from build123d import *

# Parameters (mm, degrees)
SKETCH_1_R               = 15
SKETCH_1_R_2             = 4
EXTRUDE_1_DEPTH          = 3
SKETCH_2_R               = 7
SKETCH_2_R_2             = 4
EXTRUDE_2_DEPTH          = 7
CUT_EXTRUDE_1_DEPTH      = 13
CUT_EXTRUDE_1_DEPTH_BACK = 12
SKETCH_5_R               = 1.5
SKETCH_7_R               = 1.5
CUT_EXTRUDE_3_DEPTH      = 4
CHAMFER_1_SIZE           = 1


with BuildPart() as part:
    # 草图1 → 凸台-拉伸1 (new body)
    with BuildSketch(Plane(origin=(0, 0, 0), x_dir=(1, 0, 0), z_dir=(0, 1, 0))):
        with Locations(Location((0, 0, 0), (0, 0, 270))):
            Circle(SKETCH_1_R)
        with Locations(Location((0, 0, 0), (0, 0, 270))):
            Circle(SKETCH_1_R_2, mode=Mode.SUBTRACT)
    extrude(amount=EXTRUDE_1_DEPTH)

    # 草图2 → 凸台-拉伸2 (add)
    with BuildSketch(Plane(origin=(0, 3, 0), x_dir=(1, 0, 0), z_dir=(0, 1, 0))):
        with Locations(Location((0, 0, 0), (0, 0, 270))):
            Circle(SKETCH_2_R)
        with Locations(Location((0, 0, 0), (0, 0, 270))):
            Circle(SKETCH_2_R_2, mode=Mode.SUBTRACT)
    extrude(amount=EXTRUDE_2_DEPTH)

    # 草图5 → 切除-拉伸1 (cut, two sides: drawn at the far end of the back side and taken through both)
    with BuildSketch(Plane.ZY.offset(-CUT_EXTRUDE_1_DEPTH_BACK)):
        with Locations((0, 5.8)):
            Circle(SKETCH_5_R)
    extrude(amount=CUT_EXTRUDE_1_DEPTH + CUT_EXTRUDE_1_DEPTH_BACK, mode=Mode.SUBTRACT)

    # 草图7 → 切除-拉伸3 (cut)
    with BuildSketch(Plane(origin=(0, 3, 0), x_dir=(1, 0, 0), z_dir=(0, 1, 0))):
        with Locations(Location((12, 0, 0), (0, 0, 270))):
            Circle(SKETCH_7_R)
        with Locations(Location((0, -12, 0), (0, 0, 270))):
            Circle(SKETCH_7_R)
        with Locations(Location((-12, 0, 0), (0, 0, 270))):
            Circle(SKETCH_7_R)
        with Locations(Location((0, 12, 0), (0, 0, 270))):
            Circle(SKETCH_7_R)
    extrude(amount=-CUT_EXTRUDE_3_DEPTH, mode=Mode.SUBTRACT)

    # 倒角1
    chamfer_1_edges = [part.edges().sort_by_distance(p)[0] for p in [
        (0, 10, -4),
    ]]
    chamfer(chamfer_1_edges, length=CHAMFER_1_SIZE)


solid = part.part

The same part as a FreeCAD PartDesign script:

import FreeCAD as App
import Part
import Sketcher

V = App.Vector
Q = App.Units.Quantity


def edges_at(feature, points):
    """Names of the edges that pass closest to the given points."""
    edges = feature.Shape.Edges
    near = lambda p: min(range(len(edges)), key=lambda i: edges[i].distToShape(Part.Vertex(*p))[0])
    return sorted({f"Edge{near(p) + 1}" for p in points})

doc = App.newDocument("Part")
body = doc.addObject("PartDesign::Body", "Body")

sketch1 = body.newObject("Sketcher::SketchObject", "Sketch")
sketch1.AttachmentSupport = (doc.getObject("XZ_Plane"), [""])
sketch1.MapMode = "FlatFace"
sketch1.addGeometry(Part.Circle(V(0, 0, 0), V(0, 0, 1), 15), False)
sketch1.addGeometry(Part.Circle(V(0, 0, 0), V(0, 0, 1), 4), False)
sketch1.addConstraint(Sketcher.Constraint("Coincident", 0, 3, -1, 1))
sketch1.addConstraint(Sketcher.Constraint("Coincident", 1, 3, -1, 1))
sketch1.addConstraint(Sketcher.Constraint("Diameter", 0, Q("30 mm")))
sketch1.addConstraint(Sketcher.Constraint("Diameter", 1, Q("8 mm")))
pad1 = body.newObject("PartDesign::Pad", "Pad")
pad1.Profile = sketch1
pad1.Length = 3
pad1.Reversed = True

sketch2 = body.newObject("Sketcher::SketchObject", "Sketch001")
sketch2.AttachmentSupport = (doc.getObject("XZ_Plane"), [""])
sketch2.MapMode = "FlatFace"
sketch2.AttachmentOffset = App.Placement(V(0, 0, -3), App.Rotation())
sketch2.addGeometry(Part.Circle(V(0, 0, 0), V(0, 0, 1), 7), False)
sketch2.addGeometry(Part.Circle(V(0, 0, 0), V(0, 0, 1), 4), False)
sketch2.addConstraint(Sketcher.Constraint("Coincident", 0, 3, -1, 1))
sketch2.addConstraint(Sketcher.Constraint("Coincident", 1, 3, -1, 1))
sketch2.addConstraint(Sketcher.Constraint("Diameter", 0, Q("14 mm")))
sketch2.addConstraint(Sketcher.Constraint("Diameter", 1, Q("8 mm")))
pad2 = body.newObject("PartDesign::Pad", "Pad001")
pad2.Profile = sketch2
pad2.Length = 7
pad2.Reversed = True

sketch3 = body.newObject("Sketcher::SketchObject", "Sketch002")
sketch3.AttachmentSupport = (doc.getObject("YZ_Plane"), [""])
sketch3.MapMode = "FlatFace"
sketch3.addGeometry(Part.Circle(V(5.8, 0, 0), V(0, 0, 1), 1.5), False)
sketch3.addConstraint(Sketcher.Constraint("PointOnObject", 0, 3, -1))
sketch3.addConstraint(Sketcher.Constraint("Diameter", 0, Q("3 mm")))
sketch3.addConstraint(Sketcher.Constraint("DistanceX", -1, 1, 0, 3, Q("5.8 mm")))
pocket1 = body.newObject("PartDesign::Pocket", "Pocket")
pocket1.Profile = sketch3
pocket1.Type = "ThroughAll"
pocket1.Midplane = True

sketch4 = body.newObject("Sketcher::SketchObject", "Sketch003")
sketch4.AttachmentSupport = (doc.getObject("XZ_Plane"), [""])
sketch4.MapMode = "FlatFace"
sketch4.AttachmentOffset = App.Placement(V(0, 0, -3), App.Rotation())
sketch4.addGeometry(Part.Circle(V(12, 0, 0), V(0, 0, 1), 1.5), False)
sketch4.addGeometry(Part.Circle(V(0, 12, 0), V(0, 0, 1), 1.5), False)
sketch4.addGeometry(Part.Circle(V(-12, 0, 0), V(0, 0, 1), 1.5), False)
sketch4.addGeometry(Part.Circle(V(0, -12, 0), V(0, 0, 1), 1.5), False)
sketch4.addConstraint(Sketcher.Constraint("Equal", 0, 1))
sketch4.addConstraint(Sketcher.Constraint("Equal", 1, 2))
sketch4.addConstraint(Sketcher.Constraint("Equal", 2, 3))
sketch4.addConstraint(Sketcher.Constraint("Symmetric", 0, 3, 2, 3, -1, 1))
sketch4.addConstraint(Sketcher.Constraint("Symmetric", 1, 3, 3, 3, -1, 1))
sketch4.addConstraint(Sketcher.Constraint("PointOnObject", 0, 3, -1))
sketch4.addConstraint(Sketcher.Constraint("PointOnObject", 1, 3, -2))
sketch4.addConstraint(Sketcher.Constraint("Diameter", 0, Q("3 mm")))
sketch4.addConstraint(Sketcher.Constraint("DistanceX", -1, 1, 0, 3, Q("12 mm")))
sketch4.addConstraint(Sketcher.Constraint("DistanceY", -1, 1, 1, 3, Q("12 mm")))
pocket2 = body.newObject("PartDesign::Pocket", "Pocket001")
pocket2.Profile = sketch4
pocket2.Length = 4
pocket2.Reversed = True
doc.recompute()

chamfer = body.newObject("PartDesign::Chamfer", "Chamfer")
chamfer.Base = (pocket2, edges_at(pocket2, [(0, 10, -4)]))
chamfer.Size = 1

doc.recompute()
